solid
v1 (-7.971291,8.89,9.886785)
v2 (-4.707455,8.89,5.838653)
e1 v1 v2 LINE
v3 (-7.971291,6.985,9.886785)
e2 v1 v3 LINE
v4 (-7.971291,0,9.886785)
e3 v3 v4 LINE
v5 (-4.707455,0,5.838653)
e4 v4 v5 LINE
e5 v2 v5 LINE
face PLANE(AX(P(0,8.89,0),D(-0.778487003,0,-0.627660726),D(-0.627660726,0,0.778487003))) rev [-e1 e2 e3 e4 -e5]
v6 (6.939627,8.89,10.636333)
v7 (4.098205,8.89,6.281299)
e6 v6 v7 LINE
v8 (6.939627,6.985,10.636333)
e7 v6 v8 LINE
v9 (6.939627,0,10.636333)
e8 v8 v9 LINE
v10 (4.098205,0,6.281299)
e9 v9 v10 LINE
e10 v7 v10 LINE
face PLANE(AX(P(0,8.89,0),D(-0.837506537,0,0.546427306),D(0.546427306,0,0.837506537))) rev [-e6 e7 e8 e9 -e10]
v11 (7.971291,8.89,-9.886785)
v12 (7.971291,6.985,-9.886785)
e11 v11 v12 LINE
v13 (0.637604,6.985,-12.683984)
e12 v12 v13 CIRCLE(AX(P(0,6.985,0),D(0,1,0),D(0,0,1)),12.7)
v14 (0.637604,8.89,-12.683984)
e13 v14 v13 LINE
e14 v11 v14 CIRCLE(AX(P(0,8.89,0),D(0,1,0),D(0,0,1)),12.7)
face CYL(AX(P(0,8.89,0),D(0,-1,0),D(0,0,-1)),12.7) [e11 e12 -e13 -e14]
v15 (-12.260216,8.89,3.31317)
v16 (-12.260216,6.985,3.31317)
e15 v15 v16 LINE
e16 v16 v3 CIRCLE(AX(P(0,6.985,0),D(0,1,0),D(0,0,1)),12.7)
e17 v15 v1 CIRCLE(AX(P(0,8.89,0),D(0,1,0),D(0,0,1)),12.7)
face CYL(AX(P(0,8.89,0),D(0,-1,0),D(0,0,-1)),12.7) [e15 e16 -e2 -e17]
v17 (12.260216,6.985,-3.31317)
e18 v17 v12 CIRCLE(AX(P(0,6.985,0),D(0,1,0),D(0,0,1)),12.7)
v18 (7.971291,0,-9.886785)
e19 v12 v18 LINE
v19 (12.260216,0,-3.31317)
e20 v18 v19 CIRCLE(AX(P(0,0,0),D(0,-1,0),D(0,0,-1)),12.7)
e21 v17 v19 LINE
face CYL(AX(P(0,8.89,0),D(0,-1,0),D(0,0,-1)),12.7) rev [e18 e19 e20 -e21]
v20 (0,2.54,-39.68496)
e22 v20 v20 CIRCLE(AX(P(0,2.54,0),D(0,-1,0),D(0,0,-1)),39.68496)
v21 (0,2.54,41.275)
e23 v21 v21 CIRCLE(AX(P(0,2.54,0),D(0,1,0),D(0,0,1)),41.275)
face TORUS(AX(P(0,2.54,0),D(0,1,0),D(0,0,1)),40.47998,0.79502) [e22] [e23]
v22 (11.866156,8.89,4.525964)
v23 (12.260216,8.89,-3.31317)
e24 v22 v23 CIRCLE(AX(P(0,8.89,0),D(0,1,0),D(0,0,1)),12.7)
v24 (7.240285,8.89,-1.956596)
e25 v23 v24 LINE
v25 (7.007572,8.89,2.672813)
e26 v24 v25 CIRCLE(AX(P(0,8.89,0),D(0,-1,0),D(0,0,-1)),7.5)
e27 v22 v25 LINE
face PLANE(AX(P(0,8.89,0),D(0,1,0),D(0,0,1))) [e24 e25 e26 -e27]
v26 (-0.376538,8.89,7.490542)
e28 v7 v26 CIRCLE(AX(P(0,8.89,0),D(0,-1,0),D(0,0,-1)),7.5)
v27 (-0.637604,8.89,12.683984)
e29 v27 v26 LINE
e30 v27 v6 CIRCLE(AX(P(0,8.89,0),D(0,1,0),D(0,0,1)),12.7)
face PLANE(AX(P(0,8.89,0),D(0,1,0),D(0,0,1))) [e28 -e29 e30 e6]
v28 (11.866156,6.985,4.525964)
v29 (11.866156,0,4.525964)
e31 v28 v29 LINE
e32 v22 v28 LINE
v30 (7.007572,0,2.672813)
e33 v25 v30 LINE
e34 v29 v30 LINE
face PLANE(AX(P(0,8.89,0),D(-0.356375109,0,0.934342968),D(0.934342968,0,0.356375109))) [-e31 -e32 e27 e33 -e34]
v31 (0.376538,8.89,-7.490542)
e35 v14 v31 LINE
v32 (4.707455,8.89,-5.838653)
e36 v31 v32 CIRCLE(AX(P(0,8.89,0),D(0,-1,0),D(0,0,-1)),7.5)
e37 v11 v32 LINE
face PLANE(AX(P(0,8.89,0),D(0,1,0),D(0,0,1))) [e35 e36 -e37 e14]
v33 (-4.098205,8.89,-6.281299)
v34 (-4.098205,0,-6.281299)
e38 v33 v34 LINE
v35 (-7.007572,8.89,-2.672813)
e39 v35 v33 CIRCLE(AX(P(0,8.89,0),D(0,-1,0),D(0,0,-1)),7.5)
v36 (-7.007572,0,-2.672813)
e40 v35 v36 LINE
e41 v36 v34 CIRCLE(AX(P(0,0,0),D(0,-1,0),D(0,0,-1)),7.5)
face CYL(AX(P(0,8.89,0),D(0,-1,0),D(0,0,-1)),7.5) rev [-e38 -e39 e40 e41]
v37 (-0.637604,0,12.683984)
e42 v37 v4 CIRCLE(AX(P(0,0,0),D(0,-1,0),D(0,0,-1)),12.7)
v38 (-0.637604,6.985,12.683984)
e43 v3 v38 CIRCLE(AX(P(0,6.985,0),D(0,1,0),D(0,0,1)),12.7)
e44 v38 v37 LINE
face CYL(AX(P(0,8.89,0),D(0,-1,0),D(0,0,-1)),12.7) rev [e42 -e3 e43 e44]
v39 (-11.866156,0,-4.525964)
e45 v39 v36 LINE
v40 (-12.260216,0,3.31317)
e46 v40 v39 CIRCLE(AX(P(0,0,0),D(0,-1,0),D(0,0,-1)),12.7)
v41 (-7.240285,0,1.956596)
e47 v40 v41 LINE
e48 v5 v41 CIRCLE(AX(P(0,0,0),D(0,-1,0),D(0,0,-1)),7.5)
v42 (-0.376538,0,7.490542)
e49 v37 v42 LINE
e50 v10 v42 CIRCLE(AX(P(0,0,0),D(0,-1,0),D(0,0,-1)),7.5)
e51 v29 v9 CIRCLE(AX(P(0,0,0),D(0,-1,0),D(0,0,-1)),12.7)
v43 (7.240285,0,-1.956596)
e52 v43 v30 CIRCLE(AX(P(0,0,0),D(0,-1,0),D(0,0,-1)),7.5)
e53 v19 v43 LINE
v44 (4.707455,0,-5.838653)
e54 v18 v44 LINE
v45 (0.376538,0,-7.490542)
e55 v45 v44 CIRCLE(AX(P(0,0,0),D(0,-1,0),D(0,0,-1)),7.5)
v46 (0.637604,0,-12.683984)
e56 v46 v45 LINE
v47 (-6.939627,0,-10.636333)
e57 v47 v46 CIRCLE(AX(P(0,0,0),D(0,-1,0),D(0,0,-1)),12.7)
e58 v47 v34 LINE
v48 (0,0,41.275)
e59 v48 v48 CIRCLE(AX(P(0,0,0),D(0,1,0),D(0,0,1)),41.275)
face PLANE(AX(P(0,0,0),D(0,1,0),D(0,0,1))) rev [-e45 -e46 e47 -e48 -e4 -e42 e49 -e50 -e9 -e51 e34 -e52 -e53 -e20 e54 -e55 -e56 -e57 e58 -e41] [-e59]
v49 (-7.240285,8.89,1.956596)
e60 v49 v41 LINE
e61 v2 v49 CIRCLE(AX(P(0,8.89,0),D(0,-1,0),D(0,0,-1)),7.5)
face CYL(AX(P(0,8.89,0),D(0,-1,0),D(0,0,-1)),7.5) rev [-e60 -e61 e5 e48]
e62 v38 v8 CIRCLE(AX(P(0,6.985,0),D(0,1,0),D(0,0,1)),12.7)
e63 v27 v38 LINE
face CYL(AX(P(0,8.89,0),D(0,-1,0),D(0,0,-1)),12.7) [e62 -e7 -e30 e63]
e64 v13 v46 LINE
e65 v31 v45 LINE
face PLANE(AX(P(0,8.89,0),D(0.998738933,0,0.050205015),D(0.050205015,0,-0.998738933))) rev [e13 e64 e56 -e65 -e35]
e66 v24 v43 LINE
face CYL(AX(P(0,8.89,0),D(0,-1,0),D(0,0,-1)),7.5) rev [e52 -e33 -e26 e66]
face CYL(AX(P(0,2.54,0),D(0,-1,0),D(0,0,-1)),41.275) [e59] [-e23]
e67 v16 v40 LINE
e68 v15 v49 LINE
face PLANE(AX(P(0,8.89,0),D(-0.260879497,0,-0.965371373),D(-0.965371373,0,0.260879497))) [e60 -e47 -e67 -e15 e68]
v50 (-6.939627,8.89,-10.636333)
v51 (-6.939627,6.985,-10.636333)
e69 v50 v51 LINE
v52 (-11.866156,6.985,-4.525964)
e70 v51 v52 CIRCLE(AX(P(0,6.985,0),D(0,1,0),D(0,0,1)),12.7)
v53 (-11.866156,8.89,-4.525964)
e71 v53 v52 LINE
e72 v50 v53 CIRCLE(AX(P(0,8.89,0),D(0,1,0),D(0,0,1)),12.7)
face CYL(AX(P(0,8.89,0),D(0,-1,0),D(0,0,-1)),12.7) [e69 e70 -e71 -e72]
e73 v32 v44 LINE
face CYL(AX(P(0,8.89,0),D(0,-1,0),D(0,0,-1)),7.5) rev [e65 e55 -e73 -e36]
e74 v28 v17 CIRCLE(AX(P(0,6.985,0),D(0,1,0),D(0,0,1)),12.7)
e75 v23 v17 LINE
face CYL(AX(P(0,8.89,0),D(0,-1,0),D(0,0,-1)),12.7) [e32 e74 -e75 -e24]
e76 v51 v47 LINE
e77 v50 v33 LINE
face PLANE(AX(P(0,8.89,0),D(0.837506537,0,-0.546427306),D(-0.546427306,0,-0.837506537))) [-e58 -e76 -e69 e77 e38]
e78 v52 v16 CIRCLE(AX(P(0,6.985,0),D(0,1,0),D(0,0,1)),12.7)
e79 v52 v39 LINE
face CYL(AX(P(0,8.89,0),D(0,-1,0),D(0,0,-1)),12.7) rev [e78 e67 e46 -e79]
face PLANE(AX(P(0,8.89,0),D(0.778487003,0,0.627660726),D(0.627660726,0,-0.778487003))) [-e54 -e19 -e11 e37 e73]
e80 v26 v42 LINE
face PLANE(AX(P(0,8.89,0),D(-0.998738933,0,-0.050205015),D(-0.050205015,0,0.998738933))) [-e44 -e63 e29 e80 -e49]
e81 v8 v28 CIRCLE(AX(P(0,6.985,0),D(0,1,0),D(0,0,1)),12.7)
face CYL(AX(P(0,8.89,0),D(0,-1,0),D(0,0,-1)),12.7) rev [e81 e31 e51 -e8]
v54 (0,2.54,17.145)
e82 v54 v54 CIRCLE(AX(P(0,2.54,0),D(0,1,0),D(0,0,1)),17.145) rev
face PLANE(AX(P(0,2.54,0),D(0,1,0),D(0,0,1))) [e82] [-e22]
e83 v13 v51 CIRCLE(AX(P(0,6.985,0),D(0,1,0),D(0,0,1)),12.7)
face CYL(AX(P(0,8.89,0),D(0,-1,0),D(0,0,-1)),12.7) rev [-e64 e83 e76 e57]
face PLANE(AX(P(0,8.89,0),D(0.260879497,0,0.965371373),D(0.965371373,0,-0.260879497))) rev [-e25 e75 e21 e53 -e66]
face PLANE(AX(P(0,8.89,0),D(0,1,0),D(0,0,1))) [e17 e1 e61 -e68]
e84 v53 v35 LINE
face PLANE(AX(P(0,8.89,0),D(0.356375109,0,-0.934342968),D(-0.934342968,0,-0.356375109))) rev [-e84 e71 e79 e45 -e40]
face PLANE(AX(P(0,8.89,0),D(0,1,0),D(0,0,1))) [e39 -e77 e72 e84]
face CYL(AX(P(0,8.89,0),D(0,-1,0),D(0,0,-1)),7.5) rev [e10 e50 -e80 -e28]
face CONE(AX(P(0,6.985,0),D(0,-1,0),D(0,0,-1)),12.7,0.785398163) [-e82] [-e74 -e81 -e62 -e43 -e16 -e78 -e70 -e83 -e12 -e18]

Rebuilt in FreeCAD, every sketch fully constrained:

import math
import FreeCAD as App
import Part
import Sketcher

V = App.Vector
Q = App.Units.Quantity


def edges_at(feature, points):
    """Names of the edges that pass closest to the given points."""
    edges = feature.Shape.Edges
    near = lambda p: min(range(len(edges)), key=lambda i: edges[i].distToShape(Part.Vertex(*p))[0])
    return sorted({f"Edge{near(p) + 1}" for p in points})

doc = App.newDocument("Part")
body = doc.addObject("PartDesign::Body", "Body")

# Sketch on XZ plane
sketch1 = doc.addObject("Sketcher::SketchObject", "Sketch")
body.addObject(sketch1)
sketch1.AttachmentSupport = (doc.XZ_Plane, [""])
sketch1.MapMode = "FlatFace"
sketch1.addGeometry(Part.Circle(V(0, 0, 0), V(0, 0, 1), 41), False)
sketch1.addConstraint([
    Sketcher.Constraint("Coincident", 0, 3, -1, 1),
    Sketcher.Constraint("Diameter", 0, Q("3.25 in")),
])
pad1 = doc.addObject("PartDesign::Pad", "Pad")
body.addObject(pad1)
pad1.Profile = sketch1
pad1.Length = Q("0.1 in")
pad1.Reversed = True

# Sketch on XZ plane
sketch2 = doc.addObject("Sketcher::SketchObject", "Sketch001")
body.addObject(sketch2)
sketch2.AttachmentSupport = (doc.XZ_Plane, [""])
sketch2.MapMode = "FlatFace"
sketch2.AttachmentOffset = App.Placement(V(0, 0, -0.1 * 25.4), App.Rotation())
sketch2.addGeometry(Part.Circle(V(0, 0, 0), V(0, 0, 1), 13), False)
sketch2.addConstraint([
    Sketcher.Constraint("Coincident", 0, 3, -1, 1),
    Sketcher.Constraint("Diameter", 0, Q("1 in")),
])
pad2 = doc.addObject("PartDesign::Pad", "Pad001")
body.addObject(pad2)
pad2.Profile = sketch2
pad2.Length = Q("0.25 in")
pad2.Reversed = True
doc.recompute()

chamfer = doc.addObject("PartDesign::Chamfer", "Chamfer")
body.addObject(chamfer)
chamfer.Base = (pad2, edges_at(pad2, [(-12.7, 2.54, 0)]))
chamfer.Size = Q("0.175 in")

# Sketch on XZ plane
sketch3 = doc.addObject("Sketcher::SketchObject", "Sketch002")
body.addObject(sketch3)
sketch3.AttachmentSupport = (doc.XZ_Plane, [""])
sketch3.MapMode = "FlatFace"
sketch3.addGeometry([
    Part.ArcOfCircle(Part.Circle(V(0, 0, 0), V(0, 0, 1), 12.7), math.radians(21), math.radians(57)),  # 0
    Part.LineSegment(V(6.9, 10.6, 0), V(4.1, 6.3, 0)),  # 1
    Part.ArcOfCircle(Part.Circle(V(0, 0, 0), V(0, 0, 1), 7.5), math.radians(57), math.radians(93)),  # 2
    Part.LineSegment(V(-0.4, 7.5, 0), V(-0.6, 12.7, 0)),  # 3
    Part.ArcOfCircle(Part.Circle(V(0, 0, 0), V(0, 0, 1), 12.7), math.radians(93), math.radians(129)),  # 4
    Part.LineSegment(V(-8, 9.9, 0), V(-4.7, 5.8, 0)),  # 5
    Part.ArcOfCircle(Part.Circle(V(0, 0, 0), V(0, 0, 1), 7.5), math.radians(129), math.radians(165)),  # 6
    Part.LineSegment(V(-7.2, 2, 0), V(-12.3, 3.3, 0)),  # 7
    Part.ArcOfCircle(Part.Circle(V(0, 0, 0), V(0, 0, 1), 12.7), math.radians(165), math.radians(201)),  # 8
    Part.LineSegment(V(-11.9, -4.5, 0), V(-7, -2.7, 0)),  # 9
    Part.ArcOfCircle(Part.Circle(V(0, 0, 0), V(0, 0, 1), 7.5), math.radians(-159), math.radians(-123)),  # 10
    Part.LineSegment(V(-4.1, -6.3, 0), V(-6.9, -10.6, 0)),  # 11
    Part.ArcOfCircle(Part.Circle(V(0, 0, 0), V(0, 0, 1), 12.7), math.radians(-123), math.radians(-87)),  # 12
    Part.LineSegment(V(0.6, -12.7, 0), V(0.4, -7.5, 0)),  # 13
    Part.ArcOfCircle(Part.Circle(V(0, 0, 0), V(0, 0, 1), 7.5), math.radians(-87), math.radians(-51)),  # 14
    Part.LineSegment(V(4.7, -5.8, 0), V(8, -9.9, 0)),  # 15
    Part.ArcOfCircle(Part.Circle(V(0, 0, 0), V(0, 0, 1), 12.7), math.radians(-51), math.radians(-15)),  # 16
    Part.LineSegment(V(12.3, -3.3, 0), V(7.2, -2, 0)),  # 17
    Part.ArcOfCircle(Part.Circle(V(0, 0, 0), V(0, 0, 1), 7.5), math.radians(-15), math.radians(21)),  # 18
    Part.LineSegment(V(7, 2.7, 0), V(11.9, 4.5, 0)),  # 19
], False)
sketch3.addConstraint([
    Sketcher.Constraint("Coincident", 0, 2, 1, 1),
    Sketcher.Constraint("Coincident", 1, 2, 2, 1),
    Sketcher.Constraint("Coincident", 2, 2, 3, 1),
    Sketcher.Constraint("Coincident", 3, 2, 4, 1),
    Sketcher.Constraint("Coincident", 4, 2, 5, 1),
    Sketcher.Constraint("Coincident", 5, 2, 6, 1),
    Sketcher.Constraint("Coincident", 6, 2, 7, 1),
    Sketcher.Constraint("Coincident", 7, 2, 8, 1),
    Sketcher.Constraint("Coincident", 8, 2, 9, 1),
    Sketcher.Constraint("Coincident", 9, 2, 10, 1),
    Sketcher.Constraint("Coincident", 10, 2, 11, 1),
    Sketcher.Constraint("Coincident", 11, 2, 12, 1),
    Sketcher.Constraint("Coincident", 12, 2, 13, 1),
    Sketcher.Constraint("Coincident", 13, 2, 14, 1),
    Sketcher.Constraint("Coincident", 14, 2, 15, 1),
    Sketcher.Constraint("Coincident", 15, 2, 16, 1),
    Sketcher.Constraint("Coincident", 16, 2, 17, 1),
    Sketcher.Constraint("Coincident", 17, 2, 18, 1),
    Sketcher.Constraint("Coincident", 18, 2, 19, 1),
    Sketcher.Constraint("Coincident", 19, 2, 0, 1),
    Sketcher.Constraint("Coincident", 0, 3, -1, 1),
    Sketcher.Constraint("Coincident", 2, 3, -1, 1),
    Sketcher.Constraint("Coincident", 4, 3, -1, 1),
    Sketcher.Constraint("Coincident", 6, 3, -1, 1),
    Sketcher.Constraint("Coincident", 8, 3, -1, 1),
    Sketcher.Constraint("Coincident", 10, 3, -1, 1),
    Sketcher.Constraint("Coincident", 12, 3, -1, 1),
    Sketcher.Constraint("Coincident", 14, 3, -1, 1),
    Sketcher.Constraint("Coincident", 16, 3, -1, 1),
    Sketcher.Constraint("Coincident", 18, 3, -1, 1),
    Sketcher.Constraint("Equal", 0, 4),
    Sketcher.Constraint("Equal", 2, 6),
    Sketcher.Constraint("Equal", 4, 8),
    Sketcher.Constraint("Equal", 6, 10),
    Sketcher.Constraint("Equal", 8, 12),
    Sketcher.Constraint("Equal", 10, 14),
    Sketcher.Constraint("Equal", 12, 16),
    Sketcher.Constraint("Equal", 14, 18),
    Sketcher.Constraint("Parallel", 1, 11),
    Sketcher.Constraint("Parallel", 3, 13),
    Sketcher.Constraint("Parallel", 5, 15),
    Sketcher.Constraint("Parallel", 7, 17),
    Sketcher.Constraint("Parallel", 9, 19),
    Sketcher.Constraint("Radius", 0, Q("0.5 in")),
    Sketcher.Constraint("Radius", 2, Q("7.5 mm")),
    Sketcher.Constraint("DistanceY", -1, 1, 1, 2, Q("6.281299 mm")),
    Sketcher.Constraint("DistanceY", 10, 2, -1, 1, Q("6.281299 mm")),
    Sketcher.Constraint("DistanceY", 4, 2, 3, 2, Q("2.7972 mm")),
    Sketcher.Constraint("DistanceX", 8, 2, 5, 2, Q("7.1587 mm")),
    Sketcher.Constraint("DistanceY", 12, 2, 15, 2, Q("2.7972 mm")),
    Sketcher.Constraint("DistanceY", -1, 1, 2, 2, Q("7.490542 mm")),
    Sketcher.Constraint("DistanceX", 4, 2, -1, 1, Q("7.971291 mm")),
    Sketcher.Constraint("DistanceY", -1, 1, 7, 2, Q("3.31317 mm")),
    Sketcher.Constraint("DistanceY", 13, 2, -1, 1, Q("7.490542 mm")),
    Sketcher.Constraint("DistanceY", 16, 2, -1, 1, Q("3.31317 mm")),
    Sketcher.Constraint("DistanceX", 1, 2, 0, 2, Q("2.841422 mm")),
    Sketcher.Constraint("DistanceY", 5, 2, 2, 2, Q("1.651889 mm")),
    Sketcher.Constraint("DistanceX", 6, 2, 5, 2, Q("2.53283 mm")),
    Sketcher.Constraint("DistanceY", 9, 2, 6, 2, Q("4.62941 mm")),
    Sketcher.Constraint("DistanceY", 17, 2, 18, 2, Q("4.62941 mm")),
])
pocket1 = doc.addObject("PartDesign::Pocket", "Pocket")
body.addObject(pocket1)
pocket1.Profile = sketch3
pocket1.Type = "ThroughAll"

# Sketch on XY plane
sketch4 = doc.addObject("Sketcher::SketchObject", "Sketch003")
body.addObject(sketch4)
sketch4.AttachmentSupport = (doc.XY_Plane, [""])
sketch4.MapMode = "FlatFace"
sketch4.addGeometry([
    Part.LineSegment(V(-41.3, 2.5, 0), V(-39.7, 2.5, 0)),
    Part.ArcOfCircle(Part.Circle(V(-40.5, 2.5, 0), V(0, 0, 1), 0.8), math.radians(0), math.radians(180)),
], False)
sketch4.addConstraint([
    Sketcher.Constraint("Coincident", 0, 1, 1, 2),
    Sketcher.Constraint("Coincident", 1, 1, 0, 2),
    Sketcher.Constraint("Horizontal", 0),
    Sketcher.Constraint("Horizontal", 1, 3, 0, 1),
    Sketcher.Constraint("DistanceY", -1, 1, 1, 3, Q("0.1 in")),
    Sketcher.Constraint("Radius", 1, Q("0.0313 in")),
    Sketcher.Constraint("DistanceX", 0, 1, -1, 1, Q("1.625 in")),
])
revolution = doc.addObject("PartDesign::Revolution", "Revolution")
body.addObject(revolution)
revolution.Profile = sketch4
revolution.ReferenceAxis = (sketch4, ["V_Axis"])
revolution.Angle = 360

doc.recompute()
